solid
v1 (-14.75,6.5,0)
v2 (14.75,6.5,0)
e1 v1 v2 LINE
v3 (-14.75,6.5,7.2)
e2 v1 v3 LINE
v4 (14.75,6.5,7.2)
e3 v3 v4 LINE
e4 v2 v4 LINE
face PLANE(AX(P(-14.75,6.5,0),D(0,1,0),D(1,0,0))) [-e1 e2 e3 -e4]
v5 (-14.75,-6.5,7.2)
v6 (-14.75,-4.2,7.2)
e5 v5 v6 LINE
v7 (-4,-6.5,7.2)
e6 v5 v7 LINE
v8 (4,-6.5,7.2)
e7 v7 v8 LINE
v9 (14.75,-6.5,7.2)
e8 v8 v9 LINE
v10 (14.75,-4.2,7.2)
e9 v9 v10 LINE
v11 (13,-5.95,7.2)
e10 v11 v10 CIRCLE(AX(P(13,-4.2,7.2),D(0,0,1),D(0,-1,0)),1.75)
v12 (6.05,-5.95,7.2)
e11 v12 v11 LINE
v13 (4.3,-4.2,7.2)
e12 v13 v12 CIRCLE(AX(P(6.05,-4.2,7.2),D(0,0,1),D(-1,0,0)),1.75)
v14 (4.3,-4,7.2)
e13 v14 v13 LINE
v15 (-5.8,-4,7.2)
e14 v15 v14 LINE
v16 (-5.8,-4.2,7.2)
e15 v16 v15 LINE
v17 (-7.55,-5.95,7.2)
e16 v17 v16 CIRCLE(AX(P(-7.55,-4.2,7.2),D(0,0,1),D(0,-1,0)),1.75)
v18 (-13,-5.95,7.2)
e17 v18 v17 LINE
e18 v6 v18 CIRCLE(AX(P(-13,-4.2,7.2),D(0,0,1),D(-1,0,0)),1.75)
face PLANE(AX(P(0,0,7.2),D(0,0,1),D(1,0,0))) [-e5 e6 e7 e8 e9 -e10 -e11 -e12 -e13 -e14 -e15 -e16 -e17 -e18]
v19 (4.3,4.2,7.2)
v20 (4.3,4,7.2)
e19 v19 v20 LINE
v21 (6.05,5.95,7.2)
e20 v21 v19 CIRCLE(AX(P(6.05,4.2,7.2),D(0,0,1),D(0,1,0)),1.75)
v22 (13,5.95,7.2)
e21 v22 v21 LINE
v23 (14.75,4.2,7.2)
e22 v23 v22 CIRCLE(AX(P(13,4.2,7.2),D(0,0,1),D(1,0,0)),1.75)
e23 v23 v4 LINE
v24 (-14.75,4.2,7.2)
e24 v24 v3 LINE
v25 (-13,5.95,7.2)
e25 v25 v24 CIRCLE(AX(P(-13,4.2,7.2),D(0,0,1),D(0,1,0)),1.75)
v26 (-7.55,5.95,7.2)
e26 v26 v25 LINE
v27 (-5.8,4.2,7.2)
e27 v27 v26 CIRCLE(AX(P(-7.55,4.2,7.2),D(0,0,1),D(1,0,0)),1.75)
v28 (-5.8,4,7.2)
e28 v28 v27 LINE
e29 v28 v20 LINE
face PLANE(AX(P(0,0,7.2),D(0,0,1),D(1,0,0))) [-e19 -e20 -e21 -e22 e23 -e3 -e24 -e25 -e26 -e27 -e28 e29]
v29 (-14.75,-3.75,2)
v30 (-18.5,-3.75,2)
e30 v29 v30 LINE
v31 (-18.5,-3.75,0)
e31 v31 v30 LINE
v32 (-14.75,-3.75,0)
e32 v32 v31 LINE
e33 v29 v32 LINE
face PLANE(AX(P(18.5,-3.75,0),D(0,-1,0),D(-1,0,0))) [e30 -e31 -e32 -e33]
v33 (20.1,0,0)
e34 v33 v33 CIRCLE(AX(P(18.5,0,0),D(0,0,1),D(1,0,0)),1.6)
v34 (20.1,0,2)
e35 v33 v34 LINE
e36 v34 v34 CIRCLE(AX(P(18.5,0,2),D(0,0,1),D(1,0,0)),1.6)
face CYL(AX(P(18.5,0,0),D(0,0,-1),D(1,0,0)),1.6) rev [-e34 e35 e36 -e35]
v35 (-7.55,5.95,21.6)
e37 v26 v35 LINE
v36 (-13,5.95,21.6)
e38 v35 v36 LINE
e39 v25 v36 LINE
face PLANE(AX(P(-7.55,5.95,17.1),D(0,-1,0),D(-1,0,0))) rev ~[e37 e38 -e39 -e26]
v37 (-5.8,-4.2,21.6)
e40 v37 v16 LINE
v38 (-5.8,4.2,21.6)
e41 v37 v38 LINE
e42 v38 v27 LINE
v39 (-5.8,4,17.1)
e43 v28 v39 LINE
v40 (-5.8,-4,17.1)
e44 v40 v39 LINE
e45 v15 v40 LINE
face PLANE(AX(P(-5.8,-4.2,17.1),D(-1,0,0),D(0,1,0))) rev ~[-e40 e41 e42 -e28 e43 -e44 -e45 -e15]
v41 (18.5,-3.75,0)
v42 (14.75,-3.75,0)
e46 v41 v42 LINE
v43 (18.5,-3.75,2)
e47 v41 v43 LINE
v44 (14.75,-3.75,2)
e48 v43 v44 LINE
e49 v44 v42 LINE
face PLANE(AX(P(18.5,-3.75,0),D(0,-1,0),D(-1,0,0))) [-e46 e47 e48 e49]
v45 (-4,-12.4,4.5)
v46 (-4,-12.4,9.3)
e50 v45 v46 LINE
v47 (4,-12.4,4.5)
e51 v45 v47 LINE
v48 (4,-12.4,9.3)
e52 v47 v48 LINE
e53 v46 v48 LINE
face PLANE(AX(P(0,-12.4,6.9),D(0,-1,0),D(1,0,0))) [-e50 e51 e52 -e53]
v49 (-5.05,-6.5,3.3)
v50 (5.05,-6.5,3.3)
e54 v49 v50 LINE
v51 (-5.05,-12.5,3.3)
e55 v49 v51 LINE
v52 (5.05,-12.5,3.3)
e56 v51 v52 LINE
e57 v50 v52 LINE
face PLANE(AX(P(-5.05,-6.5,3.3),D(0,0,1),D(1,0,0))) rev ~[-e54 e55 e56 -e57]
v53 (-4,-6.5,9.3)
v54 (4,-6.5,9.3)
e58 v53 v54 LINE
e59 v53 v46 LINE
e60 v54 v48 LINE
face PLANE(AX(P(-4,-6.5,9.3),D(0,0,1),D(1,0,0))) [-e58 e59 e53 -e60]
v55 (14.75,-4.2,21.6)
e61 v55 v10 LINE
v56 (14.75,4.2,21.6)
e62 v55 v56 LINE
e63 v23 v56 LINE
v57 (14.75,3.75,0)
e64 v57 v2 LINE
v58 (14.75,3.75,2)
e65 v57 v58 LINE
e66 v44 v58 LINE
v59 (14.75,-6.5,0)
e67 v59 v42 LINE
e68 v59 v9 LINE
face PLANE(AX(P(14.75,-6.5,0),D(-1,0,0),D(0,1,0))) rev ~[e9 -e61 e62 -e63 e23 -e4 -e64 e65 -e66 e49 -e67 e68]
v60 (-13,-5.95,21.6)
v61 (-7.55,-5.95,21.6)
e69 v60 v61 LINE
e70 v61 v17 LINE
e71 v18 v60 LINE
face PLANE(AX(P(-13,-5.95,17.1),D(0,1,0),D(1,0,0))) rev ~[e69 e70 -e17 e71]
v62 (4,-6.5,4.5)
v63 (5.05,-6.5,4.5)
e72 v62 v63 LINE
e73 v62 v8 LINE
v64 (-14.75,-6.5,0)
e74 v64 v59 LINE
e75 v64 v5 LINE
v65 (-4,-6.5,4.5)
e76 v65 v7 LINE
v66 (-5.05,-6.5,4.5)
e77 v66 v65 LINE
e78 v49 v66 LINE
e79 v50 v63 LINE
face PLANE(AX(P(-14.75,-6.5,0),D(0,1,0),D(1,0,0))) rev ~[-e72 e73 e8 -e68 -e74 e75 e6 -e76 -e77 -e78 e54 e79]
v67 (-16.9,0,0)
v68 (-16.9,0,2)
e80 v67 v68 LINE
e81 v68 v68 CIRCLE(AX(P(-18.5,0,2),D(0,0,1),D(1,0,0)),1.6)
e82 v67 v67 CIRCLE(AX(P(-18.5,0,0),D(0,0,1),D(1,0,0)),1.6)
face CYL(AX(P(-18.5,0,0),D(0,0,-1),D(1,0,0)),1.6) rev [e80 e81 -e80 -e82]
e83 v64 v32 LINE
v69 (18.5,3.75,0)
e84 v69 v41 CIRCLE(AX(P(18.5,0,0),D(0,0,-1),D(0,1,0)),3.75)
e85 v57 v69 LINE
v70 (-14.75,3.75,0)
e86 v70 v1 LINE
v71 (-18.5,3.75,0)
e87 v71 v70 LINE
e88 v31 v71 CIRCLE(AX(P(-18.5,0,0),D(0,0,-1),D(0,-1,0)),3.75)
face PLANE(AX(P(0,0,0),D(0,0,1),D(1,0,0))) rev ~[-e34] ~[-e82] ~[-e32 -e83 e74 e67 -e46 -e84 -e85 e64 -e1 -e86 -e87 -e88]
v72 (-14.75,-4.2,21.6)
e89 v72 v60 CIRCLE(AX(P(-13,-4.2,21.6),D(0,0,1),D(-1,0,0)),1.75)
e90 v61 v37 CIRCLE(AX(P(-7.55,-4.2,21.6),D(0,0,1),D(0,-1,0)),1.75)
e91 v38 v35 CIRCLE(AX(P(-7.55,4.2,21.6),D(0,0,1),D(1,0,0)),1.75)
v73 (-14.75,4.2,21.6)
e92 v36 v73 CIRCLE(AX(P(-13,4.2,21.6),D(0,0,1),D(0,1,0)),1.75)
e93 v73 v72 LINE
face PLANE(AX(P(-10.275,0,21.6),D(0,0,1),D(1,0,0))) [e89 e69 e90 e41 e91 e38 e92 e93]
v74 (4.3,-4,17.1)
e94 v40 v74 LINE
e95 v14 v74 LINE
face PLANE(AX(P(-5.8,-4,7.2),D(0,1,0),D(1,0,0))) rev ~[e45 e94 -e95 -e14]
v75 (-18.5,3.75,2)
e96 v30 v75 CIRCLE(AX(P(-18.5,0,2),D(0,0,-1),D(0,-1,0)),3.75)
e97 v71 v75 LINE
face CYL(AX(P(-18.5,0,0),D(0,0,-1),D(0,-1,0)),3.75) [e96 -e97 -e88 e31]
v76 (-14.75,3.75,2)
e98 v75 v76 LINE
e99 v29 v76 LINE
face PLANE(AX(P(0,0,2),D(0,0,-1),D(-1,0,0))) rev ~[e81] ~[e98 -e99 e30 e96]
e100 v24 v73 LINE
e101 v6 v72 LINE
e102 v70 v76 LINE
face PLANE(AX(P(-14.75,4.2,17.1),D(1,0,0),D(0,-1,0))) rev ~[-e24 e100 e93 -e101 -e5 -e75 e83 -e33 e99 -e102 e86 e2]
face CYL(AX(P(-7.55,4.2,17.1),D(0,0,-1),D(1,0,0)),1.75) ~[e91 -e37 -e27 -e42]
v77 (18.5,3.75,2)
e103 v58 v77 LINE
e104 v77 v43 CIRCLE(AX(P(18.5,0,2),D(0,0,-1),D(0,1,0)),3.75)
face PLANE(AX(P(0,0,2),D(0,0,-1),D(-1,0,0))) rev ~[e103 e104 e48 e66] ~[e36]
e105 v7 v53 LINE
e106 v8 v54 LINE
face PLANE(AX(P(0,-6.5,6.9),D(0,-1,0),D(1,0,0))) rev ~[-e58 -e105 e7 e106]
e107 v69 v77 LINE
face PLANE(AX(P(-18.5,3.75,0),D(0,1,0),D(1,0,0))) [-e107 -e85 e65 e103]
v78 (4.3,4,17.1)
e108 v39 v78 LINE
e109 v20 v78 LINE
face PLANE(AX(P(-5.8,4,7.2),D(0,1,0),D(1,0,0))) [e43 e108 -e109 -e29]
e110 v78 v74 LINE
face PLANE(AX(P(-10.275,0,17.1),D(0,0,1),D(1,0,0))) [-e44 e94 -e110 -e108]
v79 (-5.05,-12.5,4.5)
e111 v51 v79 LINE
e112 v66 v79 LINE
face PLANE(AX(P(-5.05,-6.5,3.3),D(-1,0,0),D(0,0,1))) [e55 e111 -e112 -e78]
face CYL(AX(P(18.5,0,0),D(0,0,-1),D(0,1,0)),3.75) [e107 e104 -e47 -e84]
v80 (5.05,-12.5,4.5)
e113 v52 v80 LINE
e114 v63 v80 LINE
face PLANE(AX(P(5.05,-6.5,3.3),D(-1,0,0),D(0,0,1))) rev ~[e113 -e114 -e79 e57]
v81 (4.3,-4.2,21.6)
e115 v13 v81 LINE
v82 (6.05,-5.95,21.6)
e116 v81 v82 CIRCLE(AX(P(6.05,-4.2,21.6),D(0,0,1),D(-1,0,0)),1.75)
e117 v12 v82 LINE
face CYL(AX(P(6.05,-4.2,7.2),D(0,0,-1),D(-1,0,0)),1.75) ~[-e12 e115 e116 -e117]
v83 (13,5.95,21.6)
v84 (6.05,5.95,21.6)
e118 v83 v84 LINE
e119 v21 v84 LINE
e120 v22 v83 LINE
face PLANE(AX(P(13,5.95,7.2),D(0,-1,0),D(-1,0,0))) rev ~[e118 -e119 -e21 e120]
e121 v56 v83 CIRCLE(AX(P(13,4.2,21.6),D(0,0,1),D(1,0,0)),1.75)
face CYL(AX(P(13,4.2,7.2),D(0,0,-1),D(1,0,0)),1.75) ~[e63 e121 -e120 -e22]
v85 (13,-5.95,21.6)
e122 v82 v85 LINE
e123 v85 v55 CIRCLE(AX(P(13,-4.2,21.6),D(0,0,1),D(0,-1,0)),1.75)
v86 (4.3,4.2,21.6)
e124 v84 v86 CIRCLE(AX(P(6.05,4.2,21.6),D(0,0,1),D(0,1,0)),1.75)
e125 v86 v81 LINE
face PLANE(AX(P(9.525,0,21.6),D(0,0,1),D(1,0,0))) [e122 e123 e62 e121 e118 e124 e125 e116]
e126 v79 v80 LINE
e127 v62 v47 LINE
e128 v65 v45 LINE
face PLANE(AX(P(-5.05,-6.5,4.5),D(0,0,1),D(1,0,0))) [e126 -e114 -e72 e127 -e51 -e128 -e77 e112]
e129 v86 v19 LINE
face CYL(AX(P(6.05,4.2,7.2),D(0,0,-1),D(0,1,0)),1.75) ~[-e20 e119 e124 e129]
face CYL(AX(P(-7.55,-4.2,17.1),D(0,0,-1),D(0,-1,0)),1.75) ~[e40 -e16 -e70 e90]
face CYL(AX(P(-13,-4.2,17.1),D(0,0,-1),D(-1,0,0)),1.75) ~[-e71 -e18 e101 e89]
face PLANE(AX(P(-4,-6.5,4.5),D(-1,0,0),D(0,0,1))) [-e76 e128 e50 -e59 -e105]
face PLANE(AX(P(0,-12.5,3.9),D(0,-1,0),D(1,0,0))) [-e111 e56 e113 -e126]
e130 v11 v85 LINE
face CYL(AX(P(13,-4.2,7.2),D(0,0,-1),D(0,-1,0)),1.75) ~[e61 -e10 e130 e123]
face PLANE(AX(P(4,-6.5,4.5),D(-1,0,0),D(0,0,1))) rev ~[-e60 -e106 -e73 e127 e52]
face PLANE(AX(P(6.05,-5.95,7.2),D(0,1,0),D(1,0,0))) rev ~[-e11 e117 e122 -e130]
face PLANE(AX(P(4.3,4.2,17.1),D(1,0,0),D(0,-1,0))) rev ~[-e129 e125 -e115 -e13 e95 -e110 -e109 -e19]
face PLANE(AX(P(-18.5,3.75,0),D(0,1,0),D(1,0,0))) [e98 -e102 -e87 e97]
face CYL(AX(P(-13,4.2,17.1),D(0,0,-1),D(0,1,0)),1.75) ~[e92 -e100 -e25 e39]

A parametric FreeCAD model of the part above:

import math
import FreeCAD as App
import Part
import Sketcher
from FreeCAD import Vector


def add_polygon(sketch, points):
    """Adds a closed chain of lines whose ends are joined by coincident constraints."""
    first, n = sketch.GeometryCount, len(points)
    for a, b in zip(points, points[1:] + points[:1]):
        sketch.addGeometry(Part.LineSegment(App.Vector(*a, 0), App.Vector(*b, 0)), False)
    for i in range(n):
        sketch.addConstraint(Sketcher.Constraint("Coincident", first + i, 2, first + (i + 1) % n, 1))

doc = App.newDocument("Part")
body = doc.addObject("PartDesign::Body", "Body")

# Sketch on XY plane
sketch1 = body.newObject("Sketcher::SketchObject", "Sketch")
sketch1.AttachmentSupport = (doc.getObject("XY_Plane"), [""])
sketch1.MapMode = "FlatFace"
sketch1.addGeometry([
    Part.LineSegment(Vector(-18.5, -3.75, 0), Vector(18.5, -3.75, 0)),  # 0
    Part.ArcOfCircle(Part.Circle(Vector(18.5, 0, 0), Vector(0, 0, 1), 3.75), math.radians(-90), math.radians(90)),  # 1
    Part.LineSegment(Vector(18.5, 3.75, 0), Vector(-18.5, 3.75, 0)),  # 2
    Part.ArcOfCircle(Part.Circle(Vector(-18.5, 0, 0), Vector(0, 0, 1), 3.75), math.radians(90), math.radians(270)),  # 3
    Part.Circle(Vector(18.5, 0, 0), Vector(0, 0, 1), 1.6),  # 4
    Part.Circle(Vector(-18.5, 0, 0), Vector(0, 0, 1), 1.6),  # 5
], False)
sketch1.addConstraint([
    Sketcher.Constraint("Tangent", 0, 2, 1, 1),
    Sketcher.Constraint("Tangent", 1, 2, 2, 1),
    Sketcher.Constraint("Tangent", 2, 2, 3, 1),
    Sketcher.Constraint("Tangent", 3, 2, 0, 1),
    Sketcher.Constraint("Horizontal", 0),
    Sketcher.Constraint("Horizontal", 2),
    Sketcher.Constraint("Coincident", 4, 3, 1, 3),
    Sketcher.Constraint("Coincident", 5, 3, 3, 3),
    Sketcher.Constraint("Equal", 4, 5),
    Sketcher.Constraint("Symmetric", 1, 3, 3, 3, -1, 1),
    Sketcher.Constraint("Diameter", 4, 3.2),
    Sketcher.Constraint("DistanceX", 0, 1, 0, 2, 37.0),
    Sketcher.Constraint("Radius", 1, 3.75),
])
pad1 = body.newObject("PartDesign::Pad", "Pad")
pad1.Profile = sketch1
pad1.Length = 2

# Sketch on XY plane
sketch2 = body.newObject("Sketcher::SketchObject", "Sketch001")
sketch2.AttachmentSupport = (doc.getObject("XY_Plane"), [""])
sketch2.MapMode = "FlatFace"
add_polygon(sketch2, [(-14.75, 6.5), (-14.75, -6.5), (14.75, -6.5), (14.75, 6.5)])  # lines 0-3
sketch2.addConstraint([
    Sketcher.Constraint("Vertical", 0),
    Sketcher.Constraint("Horizontal", 1),
    Sketcher.Constraint("Vertical", 2),
    Sketcher.Constraint("Horizontal", 3),
    Sketcher.Constraint("Symmetric", 0, 2, 2, 2, -1, 1),
    Sketcher.Constraint("DistanceY", 0, 2, 0, 1, 13.0),
    Sketcher.Constraint("DistanceX", 1, 1, 1, 2, 29.5),
])
pad2 = body.newObject("PartDesign::Pad", "Pad001")
pad2.Profile = sketch2
pad2.Length = 7.2

# Sketch on XY plane
sketch3 = body.newObject("Sketcher::SketchObject", "Sketch002")
sketch3.AttachmentSupport = (doc.getObject("XY_Plane"), [""])
sketch3.MapMode = "FlatFace"
sketch3.AttachmentOffset = App.Placement(Vector(0, 0, 7.2), App.Rotation())
sketch3.addGeometry([
    Part.ArcOfCircle(Part.Circle(Vector(-7.55, 4.2, 0), Vector(0, 0, 1), 1.75), math.radians(0), math.radians(90)),  # 0
    Part.LineSegment(Vector(-7.55, 5.95, 0), Vector(-13, 5.95, 0)),  # 1
    Part.ArcOfCircle(Part.Circle(Vector(-13, 4.2, 0), Vector(0, 0, 1), 1.75), math.radians(90), math.radians(180)),  # 2
    Part.LineSegment(Vector(-14.75, 4.2, 0), Vector(-14.75, -4.2, 0)),  # 3
    Part.ArcOfCircle(Part.Circle(Vector(-13, -4.2, 0), Vector(0, 0, 1), 1.75), math.radians(180), math.radians(270)),  # 4
    Part.LineSegment(Vector(-13, -5.95, 0), Vector(-7.55, -5.95, 0)),  # 5
    Part.ArcOfCircle(Part.Circle(Vector(-7.55, -4.2, 0), Vector(0, 0, 1), 1.75), math.radians(-90), math.radians(0)),  # 6
    Part.LineSegment(Vector(-5.8, -4.2, 0), Vector(-5.8, -4, 0)),  # 7
    Part.LineSegment(Vector(-5.8, -4, 0), Vector(4.3, -4, 0)),  # 8
    Part.LineSegment(Vector(4.3, -4, 0), Vector(4.3, -4.2, 0)),  # 9
    Part.ArcOfCircle(Part.Circle(Vector(6.05, -4.2, 0), Vector(0, 0, 1), 1.75), math.radians(180), math.radians(270)),  # 10
    Part.LineSegment(Vector(6.05, -5.95, 0), Vector(13, -5.95, 0)),  # 11
    Part.ArcOfCircle(Part.Circle(Vector(13, -4.2, 0), Vector(0, 0, 1), 1.75), math.radians(-90), math.radians(0)),  # 12
    Part.LineSegment(Vector(14.75, -4.2, 0), Vector(14.75, 4.2, 0)),  # 13
    Part.ArcOfCircle(Part.Circle(Vector(13, 4.2, 0), Vector(0, 0, 1), 1.75), math.radians(0), math.radians(90)),  # 14
    Part.LineSegment(Vector(13, 5.95, 0), Vector(6.05, 5.95, 0)),  # 15
    Part.ArcOfCircle(Part.Circle(Vector(6.05, 4.2, 0), Vector(0, 0, 1), 1.75), math.radians(90), math.radians(180)),  # 16
    Part.LineSegment(Vector(4.3, 4.2, 0), Vector(4.3, 4, 0)),  # 17
    Part.LineSegment(Vector(4.3, 4, 0), Vector(-5.8, 4, 0)),  # 18
    Part.LineSegment(Vector(-5.8, 4, 0), Vector(-5.8, 4.2, 0)),  # 19
], False)
sketch3.addConstraint([
    Sketcher.Constraint("Tangent", 0, 2, 1, 1),
    Sketcher.Constraint("Tangent", 1, 2, 2, 1),
    Sketcher.Constraint("Tangent", 2, 2, 3, 1),
    Sketcher.Constraint("Tangent", 3, 2, 4, 1),
    Sketcher.Constraint("Tangent", 4, 2, 5, 1),
    Sketcher.Constraint("Tangent", 5, 2, 6, 1),
    Sketcher.Constraint("Tangent", 6, 2, 7, 1),
    Sketcher.Constraint("Coincident", 7, 2, 8, 1),
    Sketcher.Constraint("Coincident", 8, 2, 9, 1),
    Sketcher.Constraint("Tangent", 9, 2, 10, 1),
    Sketcher.Constraint("Tangent", 10, 2, 11, 1),
    Sketcher.Constraint("Tangent", 11, 2, 12, 1),
    Sketcher.Constraint("Tangent", 12, 2, 13, 1),
    Sketcher.Constraint("Tangent", 13, 2, 14, 1),
    Sketcher.Constraint("Tangent", 14, 2, 15, 1),
    Sketcher.Constraint("Tangent", 15, 2, 16, 1),
    Sketcher.Constraint("Tangent", 16, 2, 17, 1),
    Sketcher.Constraint("Coincident", 17, 2, 18, 1),
    Sketcher.Constraint("Coincident", 18, 2, 19, 1),
    Sketcher.Constraint("Tangent", 19, 2, 0, 1),
    Sketcher.Constraint("Horizontal", 1),
    Sketcher.Constraint("Vertical", 3),
    Sketcher.Constraint("Horizontal", 5),
    Sketcher.Constraint("Vertical", 7),
    Sketcher.Constraint("Horizontal", 8),
    Sketcher.Constraint("Vertical", 9),
    Sketcher.Constraint("Horizontal", 11),
    Sketcher.Constraint("Vertical", 13),
    Sketcher.Constraint("Horizontal", 15),
    Sketcher.Constraint("Vertical", 17),
    Sketcher.Constraint("Horizontal", 18),
    Sketcher.Constraint("Vertical", 19),
    Sketcher.Constraint("Equal", 0, 2),
    Sketcher.Constraint("Equal", 2, 4),
    Sketcher.Constraint("Equal", 4, 6),
    Sketcher.Constraint("Equal", 6, 10),
    Sketcher.Constraint("Equal", 10, 12),
    Sketcher.Constraint("Equal", 12, 14),
    Sketcher.Constraint("Equal", 14, 16),
    Sketcher.Constraint("Symmetric", 2, 3, 12, 3, -1, 1),
    Sketcher.Constraint("Symmetric", 0, 3, 6, 3, -1),
    Sketcher.Constraint("Symmetric", 10, 3, 16, 3, -1),
    Sketcher.Constraint("Equal", 9, 17),
    Sketcher.Constraint("Radius", 0, 1.75),
    Sketcher.Constraint("DistanceX", 8, 1, 8, 2, 10.1),
    Sketcher.Constraint("DistanceY", 3, 2, 3, 1, 8.4),
    Sketcher.Constraint("DistanceY", 7, 1, 7, 2, 0.2),
    Sketcher.Constraint("DistanceX", 2, 3, -1, 1, 13.0),
    Sketcher.Constraint("DistanceX", 1, 2, 1, 1, 5.45),
])
pad3 = body.newObject("PartDesign::Pad", "Pad002")
pad3.Profile = sketch3
pad3.Length = 9.9

# Sketch on XY plane
sketch4 = body.newObject("Sketcher::SketchObject", "Sketch003")
sketch4.AttachmentSupport = (doc.getObject("XY_Plane"), [""])
sketch4.MapMode = "FlatFace"
sketch4.AttachmentOffset = App.Placement(Vector(0, 0, 17.1), App.Rotation())
sketch4.addGeometry([
    Part.ArcOfCircle(Part.Circle(Vector(-7.55, 4.2, 0), Vector(0, 0, 1), 1.75), math.radians(0), math.radians(90)),  # 0
    Part.LineSegment(Vector(-7.55, 5.95, 0), Vector(-13, 5.95, 0)),  # 1
    Part.ArcOfCircle(Part.Circle(Vector(-13, 4.2, 0), Vector(0, 0, 1), 1.75), math.radians(90), math.radians(180)),  # 2
    Part.LineSegment(Vector(-14.75, 4.2, 0), Vector(-14.75, -4.2, 0)),  # 3
    Part.ArcOfCircle(Part.Circle(Vector(-13, -4.2, 0), Vector(0, 0, 1), 1.75), math.radians(180), math.radians(270)),  # 4
    Part.LineSegment(Vector(-13, -5.95, 0), Vector(-7.55, -5.95, 0)),  # 5
    Part.ArcOfCircle(Part.Circle(Vector(-7.55, -4.2, 0), Vector(0, 0, 1), 1.75), math.radians(-90), math.radians(0)),  # 6
    Part.LineSegment(Vector(-5.8, -4.2, 0), Vector(-5.8, 4.2, 0)),  # 7
    Part.ArcOfCircle(Part.Circle(Vector(6.05, -4.2, 0), Vector(0, 0, 1), 1.75), math.radians(180), math.radians(270)),  # 8
    Part.LineSegment(Vector(6.05, -5.95, 0), Vector(13, -5.95, 0)),  # 9
    Part.ArcOfCircle(Part.Circle(Vector(13, -4.2, 0), Vector(0, 0, 1), 1.75), math.radians(-90), math.radians(0)),  # 10
    Part.LineSegment(Vector(14.75, -4.2, 0), Vector(14.75, 4.2, 0)),  # 11
    Part.ArcOfCircle(Part.Circle(Vector(13, 4.2, 0), Vector(0, 0, 1), 1.75), math.radians(0), math.radians(90)),  # 12
    Part.LineSegment(Vector(13, 5.95, 0), Vector(6.05, 5.95, 0)),  # 13
    Part.ArcOfCircle(Part.Circle(Vector(6.05, 4.2, 0), Vector(0, 0, 1), 1.75), math.radians(90), math.radians(180)),  # 14
    Part.LineSegment(Vector(4.3, 4.2, 0), Vector(4.3, -4.2, 0)),  # 15
], False)
sketch4.addConstraint([
    Sketcher.Constraint("Tangent", 0, 2, 1, 1),
    Sketcher.Constraint("Tangent", 1, 2, 2, 1),
    Sketcher.Constraint("Tangent", 2, 2, 3, 1),
    Sketcher.Constraint("Tangent", 3, 2, 4, 1),
    Sketcher.Constraint("Tangent", 4, 2, 5, 1),
    Sketcher.Constraint("Tangent", 5, 2, 6, 1),
    Sketcher.Constraint("Tangent", 6, 2, 7, 1),
    Sketcher.Constraint("Tangent", 7, 2, 0, 1),
    Sketcher.Constraint("Tangent", 8, 2, 9, 1),
    Sketcher.Constraint("Tangent", 9, 2, 10, 1),
    Sketcher.Constraint("Tangent", 10, 2, 11, 1),
    Sketcher.Constraint("Tangent", 11, 2, 12, 1),
    Sketcher.Constraint("Tangent", 12, 2, 13, 1),
    Sketcher.Constraint("Tangent", 13, 2, 14, 1),
    Sketcher.Constraint("Tangent", 14, 2, 15, 1),
    Sketcher.Constraint("Tangent", 15, 2, 8, 1),
    Sketcher.Constraint("Horizontal", 1),
    Sketcher.Constraint("Vertical", 3),
    Sketcher.Constraint("Horizontal", 5),
    Sketcher.Constraint("Vertical", 7),
    Sketcher.Constraint("Horizontal", 9),
    Sketcher.Constraint("Vertical", 11),
    Sketcher.Constraint("Horizontal", 13),
    Sketcher.Constraint("Vertical", 15),
    Sketcher.Constraint("Equal", 0, 2),
    Sketcher.Constraint("Equal", 2, 4),
    Sketcher.Constraint("Equal", 4, 6),
    Sketcher.Constraint("Equal", 6, 8),
    Sketcher.Constraint("Equal", 8, 10),
    Sketcher.Constraint("Equal", 10, 12),
    Sketcher.Constraint("Equal", 12, 14),
    Sketcher.Constraint("Symmetric", 2, 3, 10, 3, -1, 1),
    Sketcher.Constraint("Horizontal", 6, 3, 8, 3),
    Sketcher.Constraint("Horizontal", 2, 3, 12, 3),
    Sketcher.Constraint("Radius", 0, 1.75),
    Sketcher.Constraint("DistanceY", 3, 2, 3, 1, 8.4),
    Sketcher.Constraint("DistanceX", 2, 3, -1, 1, 13.0),
    Sketcher.Constraint("DistanceX", 1, 2, 1, 1, 5.45),
    Sketcher.Constraint("DistanceX", 9, 1, 9, 2, 6.95),
])
pad4 = body.newObject("PartDesign::Pad", "Pad003")
pad4.Profile = sketch4
pad4.Length = 4.5

# Sketch on XZ plane
sketch5 = body.newObject("Sketcher::SketchObject", "Sketch004")
sketch5.AttachmentSupport = (doc.getObject("XZ_Plane"), [""])
sketch5.MapMode = "FlatFace"
sketch5.AttachmentOffset = App.Placement(Vector(0, 0, 6.5), App.Rotation())
add_polygon(sketch5, [(-5.05, 4.5), (-5.05, 3.3), (5.05, 3.3), (5.05, 4.5)])  # lines 0-3
sketch5.addConstraint([
    Sketcher.Constraint("Vertical", 0),
    Sketcher.Constraint("Horizontal", 1),
    Sketcher.Constraint("Vertical", 2),
    Sketcher.Constraint("Horizontal", 3),
    Sketcher.Constraint("DistanceX", 1, 1, 1, 2, 10.1),
    Sketcher.Constraint("DistanceY", 0, 2, 0, 1, 1.2),
    Sketcher.Constraint("DistanceY", -1, 1, 0, 2, 3.3),
    Sketcher.Constraint("DistanceX", 0, 2, -1, 1, 5.05),
])
pad5 = body.newObject("PartDesign::Pad", "Pad004")
pad5.Profile = sketch5
pad5.Length = 6

# Sketch on XZ plane
sketch6 = body.newObject("Sketcher::SketchObject", "Sketch005")
sketch6.AttachmentSupport = (doc.getObject("XZ_Plane"), [""])
sketch6.MapMode = "FlatFace"
sketch6.AttachmentOffset = App.Placement(Vector(0, 0, 6.5), App.Rotation())
add_polygon(sketch6, [(-4, 9.3), (-4, 4.5), (4, 4.5), (4, 9.3)])  # lines 0-3
sketch6.addConstraint([
    Sketcher.Constraint("Vertical", 0),
    Sketcher.Constraint("Horizontal", 1),
    Sketcher.Constraint("Vertical", 2),
    Sketcher.Constraint("Horizontal", 3),
    Sketcher.Constraint("DistanceX", 1, 1, 1, 2, 8.0),
    Sketcher.Constraint("DistanceY", 0, 2, 0, 1, 4.8),
    Sketcher.Constraint("DistanceX", 0, 2, -1, 1, 4.0),
    Sketcher.Constraint("DistanceY", -1, 1, 0, 2, 4.5),
])
pad6 = body.newObject("PartDesign::Pad", "Pad005")
pad6.Profile = sketch6
pad6.Length = 5.9

doc.recompute()
